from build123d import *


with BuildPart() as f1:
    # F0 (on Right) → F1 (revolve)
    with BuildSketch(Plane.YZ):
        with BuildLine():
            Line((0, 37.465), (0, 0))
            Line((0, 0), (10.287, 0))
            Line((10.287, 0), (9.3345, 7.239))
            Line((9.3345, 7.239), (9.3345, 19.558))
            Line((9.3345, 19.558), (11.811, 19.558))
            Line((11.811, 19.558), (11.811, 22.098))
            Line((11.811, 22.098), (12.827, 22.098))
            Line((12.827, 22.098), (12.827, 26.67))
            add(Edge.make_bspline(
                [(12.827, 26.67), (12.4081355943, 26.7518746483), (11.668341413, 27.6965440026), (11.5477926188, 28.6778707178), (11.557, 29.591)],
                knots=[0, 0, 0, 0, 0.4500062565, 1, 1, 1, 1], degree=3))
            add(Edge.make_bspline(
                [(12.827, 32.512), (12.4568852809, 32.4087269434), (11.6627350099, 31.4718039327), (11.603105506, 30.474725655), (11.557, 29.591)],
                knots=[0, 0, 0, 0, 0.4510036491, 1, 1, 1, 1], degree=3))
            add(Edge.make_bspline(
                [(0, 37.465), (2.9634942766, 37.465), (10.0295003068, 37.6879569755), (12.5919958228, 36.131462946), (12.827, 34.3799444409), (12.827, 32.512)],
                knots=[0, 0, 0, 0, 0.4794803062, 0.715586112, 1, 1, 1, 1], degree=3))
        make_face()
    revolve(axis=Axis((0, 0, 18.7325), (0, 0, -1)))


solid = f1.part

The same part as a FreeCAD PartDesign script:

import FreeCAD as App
import Part
import Sketcher
from FreeCAD import Vector
Q = App.Units.Quantity

doc = App.newDocument("Part")
params = doc.addObject("Spreadsheet::Sheet", "Params")
for row, (alias, value) in enumerate([
    ("sketch1_height", "0.1 in"),
    ("sketch1_width", "0.04 in"),
    ("sketch1_height2", "0.18 in"),
    ("sketch1_height3", "0.485 in"),
    ("revolution_angle", "360 deg"),
], start=1):
    params.set(f"A{row}", alias)
    params.set(f"B{row}", "=" + value)
    params.setAlias(f"B{row}", alias)

body = doc.addObject("PartDesign::Body", "Body")

# Sketch on YZ plane
sketch1 = doc.addObject("Sketcher::SketchObject", "Sketch")
body.addObject(sketch1)
sketch1.AttachmentSupport = (doc.YZ_Plane, [""])
sketch1.MapMode = "FlatFace"
sketch1.addGeometry(Part.LineSegment(Vector(0, 37.465, 0), Vector(0, 0, 0)), False)
sketch1.addGeometry(Part.LineSegment(Vector(0, 0, 0), Vector(10.287, 0, 0)), False)
sketch1.addGeometry(Part.LineSegment(Vector(10.287, 0, 0), Vector(9.3345, 7.239, 0)), False)
sketch1.addGeometry(Part.LineSegment(Vector(9.3345, 7.239, 0), Vector(9.3345, 19.558, 0)), False)
sketch1.addGeometry(Part.LineSegment(Vector(9.3345, 19.558, 0), Vector(11.811, 19.558, 0)), False)
sketch1.addGeometry(Part.LineSegment(Vector(11.811, 19.558, 0), Vector(11.811, 22.098, 0)), False)
sketch1.addGeometry(Part.LineSegment(Vector(11.811, 22.098, 0), Vector(12.827, 22.098, 0)), False)
sketch1.addGeometry(Part.LineSegment(Vector(12.827, 22.098, 0), Vector(12.827, 26.67, 0)), False)
sketch1.addGeometry(Part.BSplineCurve([Vector(12.827, 26.67, 0), Vector(12.408136, 26.751875, 0), Vector(11.668341, 27.696544, 0), Vector(11.547793, 28.677871, 0), Vector(11.557, 29.591, 0)], [4, 1, 4], [0, 0.450006256, 1], False, 3, [1, 1, 1, 1, 1], False), False)
sketch1.addGeometry(Part.BSplineCurve([Vector(12.827, 32.512, 0), Vector(12.456885, 32.408727, 0), Vector(11.662735, 31.471804, 0), Vector(11.603106, 30.474726, 0), Vector(11.557, 29.591, 0)], [4, 1, 4], [0, 0.451003649, 1], False, 3, [1, 1, 1, 1, 1], False), False)
sketch1.addGeometry(Part.BSplineCurve([Vector(0, 37.465, 0), Vector(2.963494, 37.465, 0), Vector(10.0295, 37.687957, 0), Vector(12.591996, 36.131463, 0), Vector(12.827, 34.379944, 0), Vector(12.827, 32.512, 0)], [4, 1, 1, 4], [0, 0.479480306, 0.715586112, 1], False, 3, [1, 1, 1, 1, 1, 1], False), False)
sketch1.addConstraint(Sketcher.Constraint("Block", 8))
sketch1.addConstraint(Sketcher.Constraint("Block", 9))
sketch1.addConstraint(Sketcher.Constraint("Block", 10))
sketch1.addConstraint(Sketcher.Constraint("Coincident", 0, 2, 1, 1))
sketch1.addConstraint(Sketcher.Constraint("Coincident", 1, 2, 2, 1))
sketch1.addConstraint(Sketcher.Constraint("Coincident", 2, 2, 3, 1))
sketch1.addConstraint(Sketcher.Constraint("Coincident", 3, 2, 4, 1))
sketch1.addConstraint(Sketcher.Constraint("Coincident", 4, 2, 5, 1))
sketch1.addConstraint(Sketcher.Constraint("Coincident", 5, 2, 6, 1))
sketch1.addConstraint(Sketcher.Constraint("Coincident", 6, 2, 7, 1))
sketch1.addConstraint(Sketcher.Constraint("Coincident", 7, 2, 8, 1))
sketch1.addConstraint(Sketcher.Constraint("Coincident", 10, 1, 0, 1))
sketch1.addConstraint(Sketcher.Constraint("Vertical", 0))
sketch1.addConstraint(Sketcher.Constraint("Horizontal", 1))
sketch1.addConstraint(Sketcher.Constraint("Vertical", 3))
sketch1.addConstraint(Sketcher.Constraint("Horizontal", 4))
sketch1.addConstraint(Sketcher.Constraint("Vertical", 5))
sketch1.addConstraint(Sketcher.Constraint("Horizontal", 6))
sketch1.addConstraint(Sketcher.Constraint("Vertical", 7))
sketch1.addConstraint(Sketcher.Constraint("PointOnObject", 1, 2, -1))
sketch1.addConstraint(Sketcher.Constraint("DistanceY", 5, 1, 5, 2, Q("0.1 in")))
sketch1.addConstraint(Sketcher.Constraint("DistanceX", 6, 1, 6, 2, Q("0.04 in")))
sketch1.addConstraint(Sketcher.Constraint("DistanceY", 7, 1, 7, 2, Q("0.18 in")))
sketch1.addConstraint(Sketcher.Constraint("DistanceX", 1, 2, 6, 2, Q("0.1 in")))
sketch1.addConstraint(Sketcher.Constraint("DistanceY", 3, 1, 3, 2, Q("0.485 in")))
sketch1.addConstraint(Sketcher.Constraint("DistanceX", 4, 1, 4, 2, Q("0.0975 in")))
sketch1.setExpression("Constraints[20]", "Params.sketch1_height")
sketch1.setExpression("Constraints[21]", "Params.sketch1_width")
sketch1.setExpression("Constraints[22]", "Params.sketch1_height2")
sketch1.setExpression("Constraints[24]", "Params.sketch1_height3")
revolution = doc.addObject("PartDesign::Revolution", "Revolution")
body.addObject(revolution)
revolution.Profile = sketch1
revolution.ReferenceAxis = (sketch1, ["V_Axis"])
revolution.setExpression("Angle", "Params.revolution_angle")

doc.recompute()
